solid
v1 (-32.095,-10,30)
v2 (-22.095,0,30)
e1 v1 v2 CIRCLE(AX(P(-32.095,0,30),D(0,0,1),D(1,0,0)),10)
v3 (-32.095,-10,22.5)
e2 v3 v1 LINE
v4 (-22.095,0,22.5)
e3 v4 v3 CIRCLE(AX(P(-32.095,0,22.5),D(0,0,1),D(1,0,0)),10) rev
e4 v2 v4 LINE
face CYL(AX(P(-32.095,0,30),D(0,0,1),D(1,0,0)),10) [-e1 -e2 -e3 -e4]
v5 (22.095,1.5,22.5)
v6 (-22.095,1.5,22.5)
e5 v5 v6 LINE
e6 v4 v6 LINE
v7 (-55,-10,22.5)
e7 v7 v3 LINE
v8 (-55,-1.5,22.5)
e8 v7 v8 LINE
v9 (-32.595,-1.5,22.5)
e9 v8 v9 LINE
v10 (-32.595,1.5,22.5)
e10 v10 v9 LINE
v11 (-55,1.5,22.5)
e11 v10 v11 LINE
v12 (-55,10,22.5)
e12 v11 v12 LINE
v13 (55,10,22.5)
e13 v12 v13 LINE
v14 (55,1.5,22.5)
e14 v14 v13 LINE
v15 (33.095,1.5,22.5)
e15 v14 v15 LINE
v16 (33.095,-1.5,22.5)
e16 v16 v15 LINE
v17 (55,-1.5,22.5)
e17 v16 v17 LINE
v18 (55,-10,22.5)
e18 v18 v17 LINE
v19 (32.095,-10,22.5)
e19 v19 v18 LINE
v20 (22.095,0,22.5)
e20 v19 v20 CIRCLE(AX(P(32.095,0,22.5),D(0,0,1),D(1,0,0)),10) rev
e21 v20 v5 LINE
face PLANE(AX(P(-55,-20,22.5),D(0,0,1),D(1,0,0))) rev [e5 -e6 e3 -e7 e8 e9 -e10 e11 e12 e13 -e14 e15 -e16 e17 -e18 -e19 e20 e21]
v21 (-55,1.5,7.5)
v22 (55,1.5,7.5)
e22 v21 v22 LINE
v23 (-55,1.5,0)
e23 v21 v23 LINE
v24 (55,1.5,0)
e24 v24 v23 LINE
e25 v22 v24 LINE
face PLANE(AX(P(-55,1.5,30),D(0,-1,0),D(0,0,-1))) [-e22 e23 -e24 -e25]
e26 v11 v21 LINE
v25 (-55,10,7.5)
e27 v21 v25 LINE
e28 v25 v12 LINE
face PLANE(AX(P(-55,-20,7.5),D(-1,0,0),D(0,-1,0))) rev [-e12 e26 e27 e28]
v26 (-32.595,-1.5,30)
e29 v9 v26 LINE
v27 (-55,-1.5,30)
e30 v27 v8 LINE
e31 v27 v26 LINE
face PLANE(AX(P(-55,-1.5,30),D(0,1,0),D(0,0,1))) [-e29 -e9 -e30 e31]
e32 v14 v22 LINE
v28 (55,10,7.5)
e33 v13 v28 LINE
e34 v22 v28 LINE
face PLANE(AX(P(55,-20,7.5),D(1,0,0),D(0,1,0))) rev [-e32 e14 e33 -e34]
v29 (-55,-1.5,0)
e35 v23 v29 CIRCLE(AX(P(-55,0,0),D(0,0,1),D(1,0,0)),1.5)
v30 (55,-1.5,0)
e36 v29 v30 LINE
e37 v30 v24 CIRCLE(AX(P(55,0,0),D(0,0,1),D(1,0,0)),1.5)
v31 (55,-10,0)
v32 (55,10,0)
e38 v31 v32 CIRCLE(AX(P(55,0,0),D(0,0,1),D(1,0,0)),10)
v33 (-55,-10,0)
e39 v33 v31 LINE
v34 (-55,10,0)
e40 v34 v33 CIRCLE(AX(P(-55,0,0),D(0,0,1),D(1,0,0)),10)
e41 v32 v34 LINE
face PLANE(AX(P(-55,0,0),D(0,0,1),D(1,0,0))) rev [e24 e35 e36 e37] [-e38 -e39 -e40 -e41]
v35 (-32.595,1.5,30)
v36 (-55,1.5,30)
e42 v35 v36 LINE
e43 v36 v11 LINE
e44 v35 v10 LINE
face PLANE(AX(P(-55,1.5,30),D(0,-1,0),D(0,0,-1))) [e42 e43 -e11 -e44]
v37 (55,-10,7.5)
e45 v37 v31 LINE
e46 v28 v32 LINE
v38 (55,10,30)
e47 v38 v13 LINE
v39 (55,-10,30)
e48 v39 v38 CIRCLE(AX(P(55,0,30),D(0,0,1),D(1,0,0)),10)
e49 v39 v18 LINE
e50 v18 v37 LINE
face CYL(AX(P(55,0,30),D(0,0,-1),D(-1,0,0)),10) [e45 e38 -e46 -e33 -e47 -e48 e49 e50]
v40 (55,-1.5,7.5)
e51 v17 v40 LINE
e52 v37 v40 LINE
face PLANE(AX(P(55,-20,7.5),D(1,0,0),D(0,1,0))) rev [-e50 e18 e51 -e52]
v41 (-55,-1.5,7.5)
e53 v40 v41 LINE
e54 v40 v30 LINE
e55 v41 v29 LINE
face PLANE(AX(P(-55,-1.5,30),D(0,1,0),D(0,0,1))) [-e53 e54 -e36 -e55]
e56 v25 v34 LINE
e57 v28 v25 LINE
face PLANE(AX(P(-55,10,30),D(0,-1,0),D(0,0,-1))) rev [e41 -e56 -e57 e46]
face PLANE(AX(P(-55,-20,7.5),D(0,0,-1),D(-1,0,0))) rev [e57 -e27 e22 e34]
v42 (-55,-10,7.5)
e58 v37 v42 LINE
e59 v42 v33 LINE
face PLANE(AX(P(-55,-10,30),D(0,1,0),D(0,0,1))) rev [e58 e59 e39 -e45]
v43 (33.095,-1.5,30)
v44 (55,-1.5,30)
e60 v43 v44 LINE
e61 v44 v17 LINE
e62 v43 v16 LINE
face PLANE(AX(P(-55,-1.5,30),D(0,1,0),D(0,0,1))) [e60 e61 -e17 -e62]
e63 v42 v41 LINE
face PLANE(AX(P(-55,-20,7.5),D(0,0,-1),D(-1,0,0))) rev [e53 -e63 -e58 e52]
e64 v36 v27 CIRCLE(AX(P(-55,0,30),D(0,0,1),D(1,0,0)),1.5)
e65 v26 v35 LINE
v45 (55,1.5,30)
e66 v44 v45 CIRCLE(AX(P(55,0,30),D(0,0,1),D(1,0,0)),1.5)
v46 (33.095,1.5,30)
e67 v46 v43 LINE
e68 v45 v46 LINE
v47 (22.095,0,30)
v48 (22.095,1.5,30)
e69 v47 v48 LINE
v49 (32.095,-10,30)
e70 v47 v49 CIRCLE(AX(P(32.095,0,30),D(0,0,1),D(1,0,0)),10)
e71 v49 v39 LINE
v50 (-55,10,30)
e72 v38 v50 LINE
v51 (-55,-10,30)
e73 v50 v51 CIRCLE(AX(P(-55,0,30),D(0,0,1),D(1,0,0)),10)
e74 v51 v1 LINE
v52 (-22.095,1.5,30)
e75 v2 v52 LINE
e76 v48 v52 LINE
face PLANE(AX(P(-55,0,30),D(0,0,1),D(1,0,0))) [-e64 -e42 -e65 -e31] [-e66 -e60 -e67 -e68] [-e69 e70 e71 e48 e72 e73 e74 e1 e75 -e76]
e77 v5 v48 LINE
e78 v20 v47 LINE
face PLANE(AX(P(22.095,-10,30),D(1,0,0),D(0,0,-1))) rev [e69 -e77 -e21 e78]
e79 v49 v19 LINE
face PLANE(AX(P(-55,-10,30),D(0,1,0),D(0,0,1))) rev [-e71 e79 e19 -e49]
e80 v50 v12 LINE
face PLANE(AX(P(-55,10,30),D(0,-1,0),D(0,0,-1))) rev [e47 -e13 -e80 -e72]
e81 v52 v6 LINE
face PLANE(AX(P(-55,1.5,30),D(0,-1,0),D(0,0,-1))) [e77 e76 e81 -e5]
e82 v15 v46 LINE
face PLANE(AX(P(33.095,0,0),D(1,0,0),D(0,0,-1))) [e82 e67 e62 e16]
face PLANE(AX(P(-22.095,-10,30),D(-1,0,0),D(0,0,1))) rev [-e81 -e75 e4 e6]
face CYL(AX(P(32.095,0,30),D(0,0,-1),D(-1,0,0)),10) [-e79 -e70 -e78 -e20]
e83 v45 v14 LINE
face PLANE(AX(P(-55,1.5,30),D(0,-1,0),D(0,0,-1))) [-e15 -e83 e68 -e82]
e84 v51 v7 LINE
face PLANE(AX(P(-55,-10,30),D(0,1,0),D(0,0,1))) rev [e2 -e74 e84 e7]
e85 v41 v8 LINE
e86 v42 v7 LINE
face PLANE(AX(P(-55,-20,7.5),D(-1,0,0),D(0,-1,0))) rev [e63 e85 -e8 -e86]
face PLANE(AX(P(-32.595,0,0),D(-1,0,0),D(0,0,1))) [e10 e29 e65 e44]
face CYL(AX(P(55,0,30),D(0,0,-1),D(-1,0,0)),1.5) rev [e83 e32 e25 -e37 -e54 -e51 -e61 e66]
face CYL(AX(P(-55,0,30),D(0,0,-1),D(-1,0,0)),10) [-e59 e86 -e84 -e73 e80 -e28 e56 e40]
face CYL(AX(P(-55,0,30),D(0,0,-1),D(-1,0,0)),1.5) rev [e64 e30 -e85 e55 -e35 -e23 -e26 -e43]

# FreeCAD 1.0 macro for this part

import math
import FreeCAD as App
import Part
import Sketcher
from FreeCAD import Vector
Q = App.Units.Quantity


def edges_at(feature, points):
    """Names of the edges that pass closest to the given points."""
    edges = feature.Shape.Edges
    near = lambda p: min(range(len(edges)), key=lambda i: edges[i].distToShape(Part.Vertex(*p))[0])
    return sorted({f"Edge{near(p) + 1}" for p in points})

doc = App.newDocument("Part")
body = doc.addObject("PartDesign::Body", "Body")

# Sketch on XY plane
sketch1 = body.newObject("Sketcher::SketchObject", "Sketch")
sketch1.AttachmentSupport = (doc.getObject("XY_Plane"), [""])
sketch1.MapMode = "FlatFace"
sketch1.addGeometry(Part.LineSegment(Vector(55, 10, 0), Vector(-55, 10, 0)), False)
sketch1.addGeometry(Part.ArcOfCircle(Part.Circle(Vector(-55, 0, 0), Vector(0, 0, 1), 10), math.radians(90), math.radians(270)), False)
sketch1.addGeometry(Part.LineSegment(Vector(-55, -10, 0), Vector(55, -10, 0)), False)
sketch1.addGeometry(Part.ArcOfCircle(Part.Circle(Vector(55, 0, 0), Vector(0, 0, 1), 10), math.radians(-90), math.radians(90)), False)
sketch1.addGeometry(Part.LineSegment(Vector(-55, 1.5, 0), Vector(55, 1.5, 0)), False)
sketch1.addGeometry(Part.ArcOfCircle(Part.Circle(Vector(55, 0, 0), Vector(0, 0, 1), 1.5), math.radians(-90), math.radians(90)), False)
sketch1.addGeometry(Part.LineSegment(Vector(55, -1.5, 0), Vector(-55, -1.5, 0)), False)
sketch1.addGeometry(Part.ArcOfCircle(Part.Circle(Vector(-55, 0, 0), Vector(0, 0, 1), 1.5), math.radians(90), math.radians(270)), False)
sketch1.addConstraint(Sketcher.Constraint("Tangent", 0, 2, 1, 1))
sketch1.addConstraint(Sketcher.Constraint("Tangent", 1, 2, 2, 1))
sketch1.addConstraint(Sketcher.Constraint("Tangent", 2, 2, 3, 1))
sketch1.addConstraint(Sketcher.Constraint("Tangent", 3, 2, 0, 1))
sketch1.addConstraint(Sketcher.Constraint("Tangent", 4, 2, 5, 2))
sketch1.addConstraint(Sketcher.Constraint("Tangent", 5, 1, 6, 1))
sketch1.addConstraint(Sketcher.Constraint("Tangent", 6, 2, 7, 2))
sketch1.addConstraint(Sketcher.Constraint("Tangent", 7, 1, 4, 1))
sketch1.addConstraint(Sketcher.Constraint("Horizontal", 0))
sketch1.addConstraint(Sketcher.Constraint("Horizontal", 2))
sketch1.addConstraint(Sketcher.Constraint("Horizontal", 4))
sketch1.addConstraint(Sketcher.Constraint("Horizontal", 6))
sketch1.addConstraint(Sketcher.Constraint("Coincident", 5, 3, 3, 3))
sketch1.addConstraint(Sketcher.Constraint("Symmetric", 1, 3, 3, 3, -1, 1))
sketch1.addConstraint(Sketcher.Constraint("Vertical", 7, 3, 0, 2))
sketch1.addConstraint(Sketcher.Constraint("Radius", 1, Q("10 mm")))
sketch1.addConstraint(Sketcher.Constraint("Radius", 5, Q("1.5 mm")))
sketch1.addConstraint(Sketcher.Constraint("DistanceX", 0, 2, 0, 1, Q("110 mm")))
pad1 = body.newObject("PartDesign::Pad", "Pad")
pad1.Profile = sketch1
pad1.Length = 30

# Sketch on XZ plane
sketch2 = body.newObject("Sketcher::SketchObject", "Sketch001")
sketch2.AttachmentSupport = (doc.getObject("XZ_Plane"), [""])
sketch2.MapMode = "FlatFace"
sketch2.AttachmentOffset = App.Placement(Vector(0, 0, -10), App.Rotation())
sketch2.addGeometry(Part.LineSegment(Vector(-55, 8, 0), Vector(-55, 22, 0)), False)
sketch2.addGeometry(Part.LineSegment(Vector(-55, 22, 0), Vector(55, 22, 0)), False)
sketch2.addGeometry(Part.LineSegment(Vector(55, 22, 0), Vector(55, 8, 0)), False)
sketch2.addGeometry(Part.LineSegment(Vector(55, 8, 0), Vector(-55, 8, 0)), False)
sketch2.addConstraint(Sketcher.Constraint("Coincident", 0, 2, 1, 1))
sketch2.addConstraint(Sketcher.Constraint("Coincident", 1, 2, 2, 1))
sketch2.addConstraint(Sketcher.Constraint("Coincident", 2, 2, 3, 1))
sketch2.addConstraint(Sketcher.Constraint("Coincident", 3, 2, 0, 1))
sketch2.addConstraint(Sketcher.Constraint("Vertical", 0))
sketch2.addConstraint(Sketcher.Constraint("Horizontal", 1))
sketch2.addConstraint(Sketcher.Constraint("Vertical", 2))
sketch2.addConstraint(Sketcher.Constraint("Horizontal", 3))
sketch2.addConstraint(Sketcher.Constraint("DistanceX", 1, 1, 1, 2, Q("110 mm")))
sketch2.addConstraint(Sketcher.Constraint("DistanceY", 0, 1, 0, 2, Q("15 mm")))
sketch2.addConstraint(Sketcher.Constraint("DistanceX", 0, 2, -1, 1, Q("55 mm")))
sketch2.addConstraint(Sketcher.Constraint("DistanceY", -1, 1, 0, 2, Q("22.5 mm")))
pocket1 = body.newObject("PartDesign::Pocket", "Pocket")
pocket1.Profile = sketch2
pocket1.Length = 30
pocket1.Reversed = True

# Sketch on XZ plane
sketch3 = body.newObject("Sketcher::SketchObject", "Sketch002")
sketch3.AttachmentSupport = (doc.getObject("XZ_Plane"), [""])
sketch3.MapMode = "FlatFace"
sketch3.addGeometry(Part.LineSegment(Vector(-22, 22, 0), Vector(-22, 30, 0)), False)
sketch3.addGeometry(Part.LineSegment(Vector(-22, 30, 0), Vector(22, 30, 0)), False)
sketch3.addGeometry(Part.LineSegment(Vector(22, 30, 0), Vector(22, 22, 0)), False)
sketch3.addGeometry(Part.LineSegment(Vector(22, 22, 0), Vector(-22, 22, 0)), False)
sketch3.addConstraint(Sketcher.Constraint("Coincident", 0, 2, 1, 1))
sketch3.addConstraint(Sketcher.Constraint("Coincident", 1, 2, 2, 1))
sketch3.addConstraint(Sketcher.Constraint("Coincident", 2, 2, 3, 1))
sketch3.addConstraint(Sketcher.Constraint("Coincident", 3, 2, 0, 1))
sketch3.addConstraint(Sketcher.Constraint("Vertical", 0))
sketch3.addConstraint(Sketcher.Constraint("Horizontal", 1))
sketch3.addConstraint(Sketcher.Constraint("Vertical", 2))
sketch3.addConstraint(Sketcher.Constraint("Horizontal", 3))
sketch3.addConstraint(Sketcher.Constraint("DistanceY", 0, 1, 0, 2, Q("7.5 mm")))
sketch3.addConstraint(Sketcher.Constraint("DistanceY", -1, 1, 0, 2, Q("30 mm")))
sketch3.addConstraint(Sketcher.Constraint("DistanceX", 1, 1, 1, 2, Q("44.19 mm")))
sketch3.addConstraint(Sketcher.Constraint("DistanceX", 0, 2, -1, 1, Q("22.095 mm")))
pocket2 = body.newObject("PartDesign::Pocket", "Pocket001")
pocket2.Profile = sketch3
pocket2.Length = 10
pocket2.Reversed = True

# Sketch on XZ plane
sketch4 = body.newObject("Sketcher::SketchObject", "Sketch003")
sketch4.AttachmentSupport = (doc.getObject("XZ_Plane"), [""])
sketch4.MapMode = "FlatFace"
sketch4.AttachmentOffset = App.Placement(Vector(0, 0, 1.5), App.Rotation())
sketch4.addGeometry(Part.LineSegment(Vector(-27, 22, 0), Vector(-27, 30, 0)), False)
sketch4.addGeometry(Part.LineSegment(Vector(-27, 30, 0), Vector(-22, 30, 0)), False)
sketch4.addGeometry(Part.LineSegment(Vector(-22, 30, 0), Vector(-22, 22, 0)), False)
sketch4.addGeometry(Part.LineSegment(Vector(-22, 22, 0), Vector(-27, 22, 0)), False)
sketch4.addGeometry(Part.LineSegment(Vector(22, 22, 0), Vector(22, 30, 0)), False)
sketch4.addGeometry(Part.LineSegment(Vector(22, 30, 0), Vector(27, 30, 0)), False)
sketch4.addGeometry(Part.LineSegment(Vector(27, 30, 0), Vector(27, 22, 0)), False)
sketch4.addGeometry(Part.LineSegment(Vector(27, 22, 0), Vector(22, 22, 0)), False)
sketch4.addConstraint(Sketcher.Constraint("Coincident", 0, 2, 1, 1))
sketch4.addConstraint(Sketcher.Constraint("Coincident", 1, 2, 2, 1))
sketch4.addConstraint(Sketcher.Constraint("Coincident", 2, 2, 3, 1))
sketch4.addConstraint(Sketcher.Constraint("Coincident", 3, 2, 0, 1))
sketch4.addConstraint(Sketcher.Constraint("Coincident", 4, 2, 5, 1))
sketch4.addConstraint(Sketcher.Constraint("Coincident", 5, 2, 6, 1))
sketch4.addConstraint(Sketcher.Constraint("Coincident", 6, 2, 7, 1))
sketch4.addConstraint(Sketcher.Constraint("Coincident", 7, 2, 4, 1))
sketch4.addConstraint(Sketcher.Constraint("Vertical", 0))
sketch4.addConstraint(Sketcher.Constraint("Horizontal", 1))
sketch4.addConstraint(Sketcher.Constraint("Vertical", 2))
sketch4.addConstraint(Sketcher.Constraint("Horizontal", 3))
sketch4.addConstraint(Sketcher.Constraint("Vertical", 4))
sketch4.addConstraint(Sketcher.Constraint("Horizontal", 5))
sketch4.addConstraint(Sketcher.Constraint("Vertical", 6))
sketch4.addConstraint(Sketcher.Constraint("Horizontal", 7))
sketch4.addConstraint(Sketcher.Constraint("Symmetric", 1, 2, 4, 2, -2))
sketch4.addConstraint(Sketcher.Constraint("Symmetric", 3, 2, 6, 2, -2))
sketch4.addConstraint(Sketcher.Constraint("DistanceX", 1, 1, 1, 2, Q("5 mm")))
sketch4.addConstraint(Sketcher.Constraint("DistanceY", 0, 1, 0, 2, Q("7.5 mm")))
sketch4.addConstraint(Sketcher.Constraint("DistanceY", -1, 1, 0, 2, Q("30 mm")))
sketch4.addConstraint(Sketcher.Constraint("DistanceX", 1, 2, 4, 2, Q("44.19 mm")))
pad2 = body.newObject("PartDesign::Pad", "Pad001")
pad2.Profile = sketch4
pad2.Length = 10
pad2.Reversed = True

# Sketch on YZ plane
sketch5 = body.newObject("Sketcher::SketchObject", "Sketch004")
sketch5.AttachmentSupport = (doc.getObject("YZ_Plane"), [""])
sketch5.MapMode = "FlatFace"
sketch5.AttachmentOffset = App.Placement(Vector(0, 0, 27.095), App.Rotation())
sketch5.addGeometry(Part.LineSegment(Vector(1.5, 30, 0), Vector(-1.5, 30, 0)), False)
sketch5.addGeometry(Part.LineSegment(Vector(-1.5, 30, 0), Vector(-1.5, 22.5, 0)), False)
sketch5.addGeometry(Part.LineSegment(Vector(-1.5, 22.5, 0), Vector(1.5, 22.5, 0)), False)
sketch5.addGeometry(Part.LineSegment(Vector(1.5, 22.5, 0), Vector(1.5, 30, 0)), False)
sketch5.addConstraint(Sketcher.Constraint("Coincident", 0, 2, 1, 1))
sketch5.addConstraint(Sketcher.Constraint("Coincident", 1, 2, 2, 1))
sketch5.addConstraint(Sketcher.Constraint("Coincident", 2, 2, 3, 1))
sketch5.addConstraint(Sketcher.Constraint("Coincident", 3, 2, 0, 1))
sketch5.addConstraint(Sketcher.Constraint("Horizontal", 0))
sketch5.addConstraint(Sketcher.Constraint("Vertical", 1))
sketch5.addConstraint(Sketcher.Constraint("Horizontal", 2))
sketch5.addConstraint(Sketcher.Constraint("Vertical", 3))
sketch5.addConstraint(Sketcher.Constraint("DistanceX", 0, 2, 0, 1, Q("3 mm")))
sketch5.addConstraint(Sketcher.Constraint("DistanceY", 1, 2, 1, 1, Q("7.5 mm")))
sketch5.addConstraint(Sketcher.Constraint("DistanceY", -1, 1, 0, 2, Q("30 mm")))
sketch5.addConstraint(Sketcher.Constraint("DistanceX", 0, 2, -1, 1, Q("1.5 mm")))
pad3 = body.newObject("PartDesign::Pad", "Pad002")
pad3.Profile = sketch5
pad3.Length = 6

# Sketch on YZ plane
sketch6 = body.newObject("Sketcher::SketchObject", "Sketch005")
sketch6.AttachmentSupport = (doc.getObject("YZ_Plane"), [""])
sketch6.MapMode = "FlatFace"
sketch6.AttachmentOffset = App.Placement(Vector(0, 0, -27.095), App.Rotation())
sketch6.addGeometry(Part.LineSegment(Vector(1.5, 22.5, 0), Vector(-1.5, 22.5, 0)), False)
sketch6.addGeometry(Part.LineSegment(Vector(-1.5, 22.5, 0), Vector(-1.5, 30, 0)), False)
sketch6.addGeometry(Part.LineSegment(Vector(-1.5, 30, 0), Vector(1.5, 30, 0)), False)
sketch6.addGeometry(Part.LineSegment(Vector(1.5, 30, 0), Vector(1.5, 22.5, 0)), False)
sketch6.addConstraint(Sketcher.Constraint("Coincident", 0, 2, 1, 1))
sketch6.addConstraint(Sketcher.Constraint("Coincident", 1, 2, 2, 1))
sketch6.addConstraint(Sketcher.Constraint("Coincident", 2, 2, 3, 1))
sketch6.addConstraint(Sketcher.Constraint("Coincident", 3, 2, 0, 1))
sketch6.addConstraint(Sketcher.Constraint("Horizontal", 0))
sketch6.addConstraint(Sketcher.Constraint("Vertical", 1))
sketch6.addConstraint(Sketcher.Constraint("Horizontal", 2))
sketch6.addConstraint(Sketcher.Constraint("Vertical", 3))
sketch6.addConstraint(Sketcher.Constraint("DistanceX", 0, 2, 0, 1, Q("3 mm")))
sketch6.addConstraint(Sketcher.Constraint("DistanceY", 1, 1, 1, 2, Q("7.5 mm")))
sketch6.addConstraint(Sketcher.Constraint("DistanceY", -1, 1, 1, 2, Q("30 mm")))
sketch6.addConstraint(Sketcher.Constraint("DistanceX", 0, 2, -1, 1, Q("1.5 mm")))
pad4 = body.newObject("PartDesign::Pad", "Pad003")
pad4.Profile = sketch6
pad4.Length = 5.5
pad4.Reversed = True
doc.recompute()

fillet = body.newObject("PartDesign::Fillet", "Fillet")
fillet.Base = (pad4, edges_at(pad4, [(22.095, -10, 26.25), (-22.095, -10, 26.25)]))
fillet.Radius = 10

doc.recompute()
